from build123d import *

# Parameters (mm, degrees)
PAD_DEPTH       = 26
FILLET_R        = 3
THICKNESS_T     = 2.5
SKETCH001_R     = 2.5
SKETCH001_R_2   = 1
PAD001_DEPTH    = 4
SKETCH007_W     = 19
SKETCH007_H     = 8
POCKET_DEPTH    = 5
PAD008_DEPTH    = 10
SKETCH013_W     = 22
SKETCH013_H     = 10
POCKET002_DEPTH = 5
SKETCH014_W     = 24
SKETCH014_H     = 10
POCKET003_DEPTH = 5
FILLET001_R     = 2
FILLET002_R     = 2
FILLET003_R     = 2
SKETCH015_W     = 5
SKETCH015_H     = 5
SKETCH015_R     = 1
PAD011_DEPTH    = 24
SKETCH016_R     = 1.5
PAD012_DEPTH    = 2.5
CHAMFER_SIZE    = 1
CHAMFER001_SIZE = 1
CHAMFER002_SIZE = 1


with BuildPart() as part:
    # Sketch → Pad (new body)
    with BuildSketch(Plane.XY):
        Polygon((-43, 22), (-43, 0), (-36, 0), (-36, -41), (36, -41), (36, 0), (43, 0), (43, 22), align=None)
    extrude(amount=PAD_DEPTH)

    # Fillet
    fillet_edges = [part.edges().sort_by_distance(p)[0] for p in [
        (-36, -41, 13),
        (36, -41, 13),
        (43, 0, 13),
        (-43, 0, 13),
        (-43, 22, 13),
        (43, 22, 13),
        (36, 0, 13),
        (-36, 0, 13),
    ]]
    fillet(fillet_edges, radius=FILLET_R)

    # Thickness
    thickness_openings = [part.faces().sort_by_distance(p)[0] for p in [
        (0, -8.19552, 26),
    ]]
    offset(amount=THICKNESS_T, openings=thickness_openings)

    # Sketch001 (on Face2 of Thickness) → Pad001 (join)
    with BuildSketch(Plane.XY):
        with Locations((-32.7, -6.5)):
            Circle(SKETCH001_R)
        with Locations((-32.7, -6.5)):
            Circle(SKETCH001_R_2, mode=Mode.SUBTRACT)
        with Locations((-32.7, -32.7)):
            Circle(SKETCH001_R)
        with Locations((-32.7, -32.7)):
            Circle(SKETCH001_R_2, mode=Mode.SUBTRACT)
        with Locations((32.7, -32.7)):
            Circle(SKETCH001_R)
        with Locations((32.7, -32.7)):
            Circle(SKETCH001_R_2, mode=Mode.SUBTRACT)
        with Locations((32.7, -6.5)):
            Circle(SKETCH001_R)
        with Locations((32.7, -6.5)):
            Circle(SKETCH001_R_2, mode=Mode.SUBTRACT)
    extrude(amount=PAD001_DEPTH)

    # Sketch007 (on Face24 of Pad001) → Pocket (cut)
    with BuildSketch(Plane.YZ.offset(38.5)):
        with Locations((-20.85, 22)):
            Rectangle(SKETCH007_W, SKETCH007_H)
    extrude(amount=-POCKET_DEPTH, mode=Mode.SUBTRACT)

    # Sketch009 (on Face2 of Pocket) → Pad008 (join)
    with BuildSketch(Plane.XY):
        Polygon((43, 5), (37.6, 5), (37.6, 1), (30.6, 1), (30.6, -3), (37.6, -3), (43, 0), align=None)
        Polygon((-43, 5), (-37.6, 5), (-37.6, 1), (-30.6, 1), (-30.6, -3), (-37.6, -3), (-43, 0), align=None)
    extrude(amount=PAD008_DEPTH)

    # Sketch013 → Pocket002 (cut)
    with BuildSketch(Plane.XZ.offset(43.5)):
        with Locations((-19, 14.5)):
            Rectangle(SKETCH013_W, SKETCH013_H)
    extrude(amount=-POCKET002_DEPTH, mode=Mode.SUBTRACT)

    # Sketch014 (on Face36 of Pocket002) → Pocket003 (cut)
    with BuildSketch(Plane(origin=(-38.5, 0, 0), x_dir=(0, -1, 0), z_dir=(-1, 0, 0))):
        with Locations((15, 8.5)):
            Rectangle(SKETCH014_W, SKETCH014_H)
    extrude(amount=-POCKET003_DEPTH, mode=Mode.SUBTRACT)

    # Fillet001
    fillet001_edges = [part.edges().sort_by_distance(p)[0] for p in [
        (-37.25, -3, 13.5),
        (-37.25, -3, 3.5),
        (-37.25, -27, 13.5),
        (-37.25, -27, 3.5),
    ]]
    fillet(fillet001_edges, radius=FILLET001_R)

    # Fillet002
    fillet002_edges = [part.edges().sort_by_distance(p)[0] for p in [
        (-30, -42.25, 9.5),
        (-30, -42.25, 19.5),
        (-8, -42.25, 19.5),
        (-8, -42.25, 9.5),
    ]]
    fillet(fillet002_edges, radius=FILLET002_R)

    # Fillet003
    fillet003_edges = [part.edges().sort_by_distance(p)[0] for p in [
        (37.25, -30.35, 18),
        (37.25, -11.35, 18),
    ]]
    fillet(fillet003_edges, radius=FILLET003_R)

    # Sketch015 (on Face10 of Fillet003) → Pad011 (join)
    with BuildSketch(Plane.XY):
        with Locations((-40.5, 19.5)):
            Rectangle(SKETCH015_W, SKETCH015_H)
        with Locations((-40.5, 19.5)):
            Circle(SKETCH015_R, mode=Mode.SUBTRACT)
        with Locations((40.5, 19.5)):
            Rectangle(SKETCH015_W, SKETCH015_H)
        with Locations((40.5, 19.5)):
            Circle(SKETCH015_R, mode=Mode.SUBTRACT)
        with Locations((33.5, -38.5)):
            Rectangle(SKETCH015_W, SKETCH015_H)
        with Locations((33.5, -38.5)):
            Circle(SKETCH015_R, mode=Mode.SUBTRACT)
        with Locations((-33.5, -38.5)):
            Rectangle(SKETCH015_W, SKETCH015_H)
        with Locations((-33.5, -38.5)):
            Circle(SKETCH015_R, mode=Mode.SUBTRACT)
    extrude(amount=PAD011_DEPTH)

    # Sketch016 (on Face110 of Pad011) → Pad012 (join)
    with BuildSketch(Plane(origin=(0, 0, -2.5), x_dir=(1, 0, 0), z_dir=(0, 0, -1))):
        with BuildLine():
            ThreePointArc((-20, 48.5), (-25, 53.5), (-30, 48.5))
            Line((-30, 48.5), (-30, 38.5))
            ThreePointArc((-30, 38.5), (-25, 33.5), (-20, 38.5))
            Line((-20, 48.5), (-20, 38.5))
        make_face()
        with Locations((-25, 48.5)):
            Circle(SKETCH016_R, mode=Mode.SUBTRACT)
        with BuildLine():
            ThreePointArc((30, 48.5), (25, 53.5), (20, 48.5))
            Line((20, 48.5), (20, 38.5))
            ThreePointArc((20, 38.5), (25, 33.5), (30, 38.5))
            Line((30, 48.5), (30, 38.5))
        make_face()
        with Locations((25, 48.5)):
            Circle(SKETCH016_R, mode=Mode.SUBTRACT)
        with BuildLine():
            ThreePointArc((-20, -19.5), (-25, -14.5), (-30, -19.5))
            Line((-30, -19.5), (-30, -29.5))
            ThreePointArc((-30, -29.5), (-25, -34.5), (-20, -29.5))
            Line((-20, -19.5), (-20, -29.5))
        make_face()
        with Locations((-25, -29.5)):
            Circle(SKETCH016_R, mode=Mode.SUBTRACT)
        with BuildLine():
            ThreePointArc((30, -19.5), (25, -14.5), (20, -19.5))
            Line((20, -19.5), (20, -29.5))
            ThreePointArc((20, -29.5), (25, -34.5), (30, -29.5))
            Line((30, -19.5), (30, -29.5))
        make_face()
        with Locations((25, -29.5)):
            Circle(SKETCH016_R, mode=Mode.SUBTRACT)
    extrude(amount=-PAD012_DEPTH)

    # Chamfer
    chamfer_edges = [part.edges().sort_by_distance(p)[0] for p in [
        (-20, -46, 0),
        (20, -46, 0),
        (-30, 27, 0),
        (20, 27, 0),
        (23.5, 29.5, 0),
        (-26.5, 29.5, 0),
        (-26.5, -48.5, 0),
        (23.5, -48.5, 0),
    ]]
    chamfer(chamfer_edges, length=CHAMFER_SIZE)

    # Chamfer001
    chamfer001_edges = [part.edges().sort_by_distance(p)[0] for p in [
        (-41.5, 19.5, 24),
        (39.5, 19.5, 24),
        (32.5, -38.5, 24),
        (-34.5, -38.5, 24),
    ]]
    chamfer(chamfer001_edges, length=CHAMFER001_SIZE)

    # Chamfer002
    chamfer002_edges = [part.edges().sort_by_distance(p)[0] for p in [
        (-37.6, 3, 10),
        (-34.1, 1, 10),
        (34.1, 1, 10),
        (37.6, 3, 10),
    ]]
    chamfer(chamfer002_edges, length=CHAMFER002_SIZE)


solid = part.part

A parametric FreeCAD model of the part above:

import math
import FreeCAD as App
import Part
import Sketcher

V = App.Vector
Q = App.Units.Quantity


def edges_at(feature, points):
    """Names of the edges that pass closest to the given points."""
    edges = feature.Shape.Edges
    near = lambda p: min(range(len(edges)), key=lambda i: edges[i].distToShape(Part.Vertex(*p))[0])
    return sorted({f"Edge{near(p) + 1}" for p in points})


def faces_at(feature, points):
    """Names of the faces that lie closest to the given points."""
    faces = feature.Shape.Faces
    near = lambda p: min(range(len(faces)), key=lambda i: faces[i].distToShape(Part.Vertex(*p))[0])
    return sorted({f"Face{near(p) + 1}" for p in points})

doc = App.newDocument("Part")
body = doc.addObject("PartDesign::Body", "Body")

sketch1 = doc.addObject("Sketcher::SketchObject", "Sketch")
body.addObject(sketch1)
sketch1.AttachmentSupport = (doc.XY_Plane, [""])
sketch1.MapMode = "FlatFace"
sketch1.addGeometry([
    Part.LineSegment(V(-43, 22, 0), V(-43, 0, 0)),
    Part.LineSegment(V(-43, 0, 0), V(-36, 0, 0)),
    Part.LineSegment(V(-36, 0, 0), V(-36, -41, 0)),
    Part.LineSegment(V(-36, -41, 0), V(36, -41, 0)),
    Part.LineSegment(V(36, -41, 0), V(36, 0, 0)),
    Part.LineSegment(V(36, 0, 0), V(43, 0, 0)),
    Part.LineSegment(V(43, 0, 0), V(43, 22, 0)),
    Part.LineSegment(V(43, 22, 0), V(-43, 22, 0)),
], False)
sketch1.addConstraint([
    Sketcher.Constraint("Coincident", 0, 2, 1, 1),
    Sketcher.Constraint("Coincident", 1, 2, 2, 1),
    Sketcher.Constraint("Coincident", 2, 2, 3, 1),
    Sketcher.Constraint("Coincident", 3, 2, 4, 1),
    Sketcher.Constraint("Coincident", 4, 2, 5, 1),
    Sketcher.Constraint("Coincident", 5, 2, 6, 1),
    Sketcher.Constraint("Coincident", 6, 2, 7, 1),
    Sketcher.Constraint("Coincident", 7, 2, 0, 1),
    Sketcher.Constraint("Vertical", 0),
    Sketcher.Constraint("Horizontal", 1),
    Sketcher.Constraint("Vertical", 2),
    Sketcher.Constraint("Horizontal", 3),
    Sketcher.Constraint("Vertical", 4),
    Sketcher.Constraint("Horizontal", 5),
    Sketcher.Constraint("Vertical", 6),
    Sketcher.Constraint("Horizontal", 7),
    Sketcher.Constraint("Symmetric", 1, 2, 4, 2, -1, 1),
    Sketcher.Constraint("Symmetric", 0, 2, 5, 2, -2),
    Sketcher.Constraint("DistanceX", 1, 1, 1, 2, Q("7 mm")),
    Sketcher.Constraint("DistanceX", 3, 1, 3, 2, Q("72 mm")),
    Sketcher.Constraint("DistanceY", 0, 2, 0, 1, Q("22 mm")),
    Sketcher.Constraint("DistanceY", 2, 2, 2, 1, Q("41 mm")),
])
pad1 = doc.addObject("PartDesign::Pad", "Pad")
body.addObject(pad1)
pad1.Profile = sketch1
pad1.Length = 26
doc.recompute()

fillet = doc.addObject("PartDesign::Fillet", "Fillet")
body.addObject(fillet)
fillet.Base = (pad1, edges_at(pad1, [
    (-36, -41, 13),
    (36, -41, 13),
    (43, 0, 13),
    (-43, 0, 13),
    (-43, 22, 13),
    (43, 22, 13),
    (36, 0, 13),
    (-36, 0, 13),
]))
fillet.Radius = 3
doc.recompute()

thickness = doc.addObject("PartDesign::Thickness", "Thickness")
body.addObject(thickness)
thickness.Base = (fillet, faces_at(fillet, [(0, -9.5, 26)]))
thickness.Value = 2.5
thickness.Reversed = False
thickness.Join = "Arc"

sketch2 = doc.addObject("Sketcher::SketchObject", "Sketch001")
body.addObject(sketch2)
sketch2.AttachmentSupport = (doc.XY_Plane, [""])
sketch2.MapMode = "FlatFace"
sketch2.addGeometry([
    Part.Circle(V(-32.7, -6.5, 0), V(0, 0, 1), 2.5),
    Part.Circle(V(-32.7, -6.5, 0), V(0, 0, 1), 1),
    Part.Circle(V(-32.7, -32.7, 0), V(0, 0, 1), 2.5),
    Part.Circle(V(-32.7, -32.7, 0), V(0, 0, 1), 1),
    Part.Circle(V(32.7, -32.7, 0), V(0, 0, 1), 2.5),
    Part.Circle(V(32.7, -32.7, 0), V(0, 0, 1), 1),
    Part.Circle(V(32.7, -6.5, 0), V(0, 0, 1), 2.5),
    Part.Circle(V(32.7, -6.5, 0), V(0, 0, 1), 1),
], False)
sketch2.addConstraint([
    Sketcher.Constraint("Coincident", 1, 3, 0, 3),
    Sketcher.Constraint("Coincident", 3, 3, 2, 3),
    Sketcher.Constraint("Coincident", 5, 3, 4, 3),
    Sketcher.Constraint("Coincident", 7, 3, 6, 3),
    Sketcher.Constraint("Equal", 0, 2),
    Sketcher.Constraint("Equal", 1, 3),
    Sketcher.Constraint("Equal", 2, 4),
    Sketcher.Constraint("Equal", 3, 5),
    Sketcher.Constraint("Equal", 4, 6),
    Sketcher.Constraint("Equal", 5, 7),
    Sketcher.Constraint("Symmetric", 2, 3, 4, 3, -2),
    Sketcher.Constraint("Symmetric", 0, 3, 6, 3, -2),
    Sketcher.Constraint("Vertical", 1, 3, 2, 3),
    Sketcher.Constraint("Diameter", 0, Q("5 mm")),
    Sketcher.Constraint("Diameter", 1, Q("2 mm")),
    Sketcher.Constraint("DistanceX", 0, 3, -1, 1, Q("32.7 mm")),
    Sketcher.Constraint("DistanceY", 0, 3, -1, 1, Q("6.5 mm")),
    Sketcher.Constraint("DistanceY", 2, 3, -1, 1, Q("32.7 mm")),
])
pad2 = doc.addObject("PartDesign::Pad", "Pad001")
body.addObject(pad2)
pad2.Profile = sketch2
pad2.Length = 4

sketch3 = doc.addObject("Sketcher::SketchObject", "Sketch002")
body.addObject(sketch3)
sketch3.AttachmentSupport = (doc.YZ_Plane, [""])
sketch3.MapMode = "FlatFace"
sketch3.AttachmentOffset = App.Placement(V(0, 0, 38.5), App.Rotation())
sketch3.addGeometry([
    Part.LineSegment(V(-30.35, 26, 0), V(-30.35, 18, 0)),
    Part.LineSegment(V(-30.35, 18, 0), V(-11.35, 18, 0)),
    Part.LineSegment(V(-11.35, 18, 0), V(-11.35, 26, 0)),
    Part.LineSegment(V(-11.35, 26, 0), V(-30.35, 26, 0)),
], False)
sketch3.addConstraint([
    Sketcher.Constraint("Coincident", 0, 2, 1, 1),
    Sketcher.Constraint("Coincident", 1, 2, 2, 1),
    Sketcher.Constraint("Coincident", 2, 2, 3, 1),
    Sketcher.Constraint("Coincident", 3, 2, 0, 1),
    Sketcher.Constraint("Vertical", 0),
    Sketcher.Constraint("Horizontal", 1),
    Sketcher.Constraint("Vertical", 2),
    Sketcher.Constraint("Horizontal", 3),
    Sketcher.Constraint("DistanceX", 1, 1, 1, 2, Q("19 mm")),
    Sketcher.Constraint("DistanceY", 0, 2, 0, 1, Q("8 mm")),
    Sketcher.Constraint("DistanceY", -1, 1, 0, 2, Q("18 mm")),
    Sketcher.Constraint("DistanceX", 0, 2, -1, 1, Q("30.35 mm")),
])
pocket1 = doc.addObject("PartDesign::Pocket", "Pocket")
body.addObject(pocket1)
pocket1.Profile = sketch3
pocket1.Length = 5

sketch4 = doc.addObject("Sketcher::SketchObject", "Sketch003")
body.addObject(sketch4)
sketch4.AttachmentSupport = (doc.XY_Plane, [""])
sketch4.MapMode = "FlatFace"
sketch4.addGeometry([
    Part.LineSegment(V(43, 5, 0), V(37.6, 5, 0)),
    Part.LineSegment(V(37.6, 5, 0), V(37.6, 1, 0)),
    Part.LineSegment(V(37.6, 1, 0), V(30.6, 1, 0)),
    Part.LineSegment(V(30.6, 1, 0), V(30.6, -3, 0)),
    Part.LineSegment(V(30.6, -3, 0), V(37.6, -3, 0)),
    Part.LineSegment(V(37.6, -3, 0), V(43, 0, 0)),
    Part.LineSegment(V(43, 0, 0), V(43, 5, 0)),
    Part.LineSegment(V(-37.6, 5, 0), V(-43, 5, 0)),
    Part.LineSegment(V(-43, 5, 0), V(-43, 0, 0)),
    Part.LineSegment(V(-43, 0, 0), V(-37.6, -3, 0)),
    Part.LineSegment(V(-37.6, -3, 0), V(-30.6, -3, 0)),
    Part.LineSegment(V(-30.6, -3, 0), V(-30.6, 1, 0)),
    Part.LineSegment(V(-30.6, 1, 0), V(-37.6, 1, 0)),
    Part.LineSegment(V(-37.6, 1, 0), V(-37.6, 5, 0)),
], False)
sketch4.addConstraint([
    Sketcher.Constraint("Coincident", 0, 2, 1, 1),
    Sketcher.Constraint("Coincident", 1, 2, 2, 1),
    Sketcher.Constraint("Coincident", 2, 2, 3, 1),
    Sketcher.Constraint("Coincident", 3, 2, 4, 1),
    Sketcher.Constraint("Coincident", 4, 2, 5, 1),
    Sketcher.Constraint("Coincident", 5, 2, 6, 1),
    Sketcher.Constraint("Coincident", 6, 2, 0, 1),
    Sketcher.Constraint("Coincident", 7, 2, 8, 1),
    Sketcher.Constraint("Coincident", 8, 2, 9, 1),
    Sketcher.Constraint("Coincident", 9, 2, 10, 1),
    Sketcher.Constraint("Coincident", 10, 2, 11, 1),
    Sketcher.Constraint("Coincident", 11, 2, 12, 1),
    Sketcher.Constraint("Coincident", 12, 2, 13, 1),
    Sketcher.Constraint("Coincident", 13, 2, 7, 1),
    Sketcher.Constraint("Horizontal", 0),
    Sketcher.Constraint("Vertical", 1),
    Sketcher.Constraint("Horizontal", 2),
    Sketcher.Constraint("Vertical", 3),
    Sketcher.Constraint("Horizontal", 4),
    Sketcher.Constraint("Vertical", 6),
    Sketcher.Constraint("Horizontal", 7),
    Sketcher.Constraint("Vertical", 8),
    Sketcher.Constraint("Horizontal", 10),
    Sketcher.Constraint("Vertical", 11),
    Sketcher.Constraint("Horizontal", 12),
    Sketcher.Constraint("Vertical", 13),
    Sketcher.Constraint("Symmetric", 5, 2, 8, 2, -1, 1),
    Sketcher.Constraint("Symmetric", 4, 2, 9, 2, -2),
    Sketcher.Constraint("Symmetric", 2, 2, 11, 2, -2),
    Sketcher.Constraint("Symmetric", 0, 2, 13, 2, -2),
    Sketcher.Constraint("PointOnObject", 5, 2, -1),
    Sketcher.Constraint("Vertical", 1, 2, 4, 2),
    Sketcher.Constraint("Equal", 1, 3),
    Sketcher.Constraint("DistanceX", 2, 2, 2, 1, Q("7 mm")),
    Sketcher.Constraint("DistanceY", 1, 2, 1, 1, Q("4 mm")),
    Sketcher.Constraint("DistanceY", 6, 1, 6, 2, Q("5 mm")),
    Sketcher.Constraint("DistanceX", 0, 2, 0, 1, Q("5.4 mm")),
    Sketcher.Constraint("DistanceX", -1, 1, 5, 2, Q("43 mm")),
])
pad3 = doc.addObject("PartDesign::Pad", "Pad002")
body.addObject(pad3)
pad3.Profile = sketch4
pad3.Length = 10

sketch5 = doc.addObject("Sketcher::SketchObject", "Sketch004")
body.addObject(sketch5)
sketch5.AttachmentSupport = (doc.XZ_Plane, [""])
sketch5.MapMode = "FlatFace"
sketch5.AttachmentOffset = App.Placement(V(0, 0, 43.5), App.Rotation())
sketch5.addGeometry([
    Part.LineSegment(V(-30, 19.5, 0), V(-30, 9.5, 0)),
    Part.LineSegment(V(-30, 9.5, 0), V(-8, 9.5, 0)),
    Part.LineSegment(V(-8, 9.5, 0), V(-8, 19.5, 0)),
    Part.LineSegment(V(-8, 19.5, 0), V(-30, 19.5, 0)),
], False)
sketch5.addConstraint([
    Sketcher.Constraint("Coincident", 0, 2, 1, 1),
    Sketcher.Constraint("Coincident", 1, 2, 2, 1),
    Sketcher.Constraint("Coincident", 2, 2, 3, 1),
    Sketcher.Constraint("Coincident", 3, 2, 0, 1),
    Sketcher.Constraint("Vertical", 0),
    Sketcher.Constraint("Horizontal", 1),
    Sketcher.Constraint("Vertical", 2),
    Sketcher.Constraint("Horizontal", 3),
    Sketcher.Constraint("DistanceX", 1, 1, 1, 2, Q("22 mm")),
    Sketcher.Constraint("DistanceY", 0, 2, 0, 1, Q("10 mm")),
    Sketcher.Constraint("DistanceX", 0, 2, -1, 1, Q("30 mm")),
    Sketcher.Constraint("DistanceY", -1, 1, 0, 2, Q("9.5 mm")),
])
pocket2 = doc.addObject("PartDesign::Pocket", "Pocket001")
body.addObject(pocket2)
pocket2.Profile = sketch5
pocket2.Length = 5

sketch6 = doc.addObject("Sketcher::SketchObject", "Sketch005")
body.addObject(sketch6)
sketch6.AttachmentSupport = (doc.YZ_Plane, [""])
sketch6.MapMode = "FlatFace"
sketch6.AttachmentOffset = App.Placement(V(0, 0, -38.5), App.Rotation())
sketch6.addGeometry([
    Part.LineSegment(V(-3, 13.5, 0), V(-3, 3.5, 0)),
    Part.LineSegment(V(-3, 3.5, 0), V(-27, 3.5, 0)),
    Part.LineSegment(V(-27, 3.5, 0), V(-27, 13.5, 0)),
    Part.LineSegment(V(-27, 13.5, 0), V(-3, 13.5, 0)),
], False)
sketch6.addConstraint([
    Sketcher.Constraint("Coincident", 0, 2, 1, 1),
    Sketcher.Constraint("Coincident", 1, 2, 2, 1),
    Sketcher.Constraint("Coincident", 2, 2, 3, 1),
    Sketcher.Constraint("Coincident", 3, 2, 0, 1),
    Sketcher.Constraint("Vertical", 0),
    Sketcher.Constraint("Horizontal", 1),
    Sketcher.Constraint("Vertical", 2),
    Sketcher.Constraint("Horizontal", 3),
    Sketcher.Constraint("DistanceX", 1, 2, 1, 1, Q("24 mm")),
    Sketcher.Constraint("DistanceY", 0, 2, 0, 1, Q("10 mm")),
    Sketcher.Constraint("DistanceX", 0, 2, -1, 1, Q("3 mm")),
    Sketcher.Constraint("DistanceY", -1, 1, 0, 2, Q("3.5 mm")),
])
pocket3 = doc.addObject("PartDesign::Pocket", "Pocket002")
body.addObject(pocket3)
pocket3.Profile = sketch6
pocket3.Length = 5
pocket3.Reversed = True
doc.recompute()

fillet2 = doc.addObject("PartDesign::Fillet", "Fillet001")
body.addObject(fillet2)
fillet2.Base = (pocket3, edges_at(pocket3, [
    (-37.25, -3, 13.5),
    (-37.25, -3, 3.5),
    (-37.25, -27, 13.5),
    (-37.25, -27, 3.5),
]))
fillet2.Radius = 2
doc.recompute()

fillet3 = doc.addObject("PartDesign::Fillet", "Fillet002")
body.addObject(fillet3)
fillet3.Base = (fillet2, edges_at(fillet2, [
    (-30, -42.25, 9.5),
    (-30, -42.25, 19.5),
    (-8, -42.25, 19.5),
    (-8, -42.25, 9.5),
]))
fillet3.Radius = 2
doc.recompute()

fillet4 = doc.addObject("PartDesign::Fillet", "Fillet003")
body.addObject(fillet4)
fillet4.Base = (fillet3, edges_at(fillet3, [(37.25, -30.35, 18), (37.25, -11.35, 18)]))
fillet4.Radius = 2

sketch7 = doc.addObject("Sketcher::SketchObject", "Sketch006")
body.addObject(sketch7)
sketch7.AttachmentSupport = (doc.XY_Plane, [""])
sketch7.MapMode = "FlatFace"
sketch7.addGeometry([
    Part.LineSegment(V(-43, 22, 0), V(-43, 17, 0)),
    Part.LineSegment(V(-43, 17, 0), V(-38, 17, 0)),
    Part.LineSegment(V(-38, 17, 0), V(-38, 22, 0)),
    Part.LineSegment(V(-38, 22, 0), V(-43, 22, 0)),
    Part.Circle(V(-40.5, 19.5, 0), V(0, 0, 1), 1),
    Part.LineSegment(V(38, 22, 0), V(38, 17, 0)),
    Part.LineSegment(V(38, 17, 0), V(43, 17, 0)),
    Part.LineSegment(V(43, 17, 0), V(43, 22, 0)),
    Part.LineSegment(V(43, 22, 0), V(38, 22, 0)),
    Part.Circle(V(40.5, 19.5, 0), V(0, 0, 1), 1),
    Part.LineSegment(V(31, -36, 0), V(31, -41, 0)),
    Part.LineSegment(V(31, -41, 0), V(36, -41, 0)),
    Part.LineSegment(V(36, -41, 0), V(36, -36, 0)),
    Part.LineSegment(V(36, -36, 0), V(31, -36, 0)),
    Part.Circle(V(33.5, -38.5, 0), V(0, 0, 1), 1),
    Part.LineSegment(V(-36, -36, 0), V(-36, -41, 0)),
    Part.LineSegment(V(-36, -41, 0), V(-31, -41, 0)),
    Part.LineSegment(V(-31, -41, 0), V(-31, -36, 0)),
    Part.LineSegment(V(-31, -36, 0), V(-36, -36, 0)),
    Part.Circle(V(-33.5, -38.5, 0), V(0, 0, 1), 1),
], False)
sketch7.addConstraint([
    Sketcher.Constraint("Coincident", 0, 2, 1, 1),
    Sketcher.Constraint("Coincident", 1, 2, 2, 1),
    Sketcher.Constraint("Coincident", 2, 2, 3, 1),
    Sketcher.Constraint("Coincident", 3, 2, 0, 1),
    Sketcher.Constraint("Coincident", 5, 2, 6, 1),
    Sketcher.Constraint("Coincident", 6, 2, 7, 1),
    Sketcher.Constraint("Coincident", 7, 2, 8, 1),
    Sketcher.Constraint("Coincident", 8, 2, 5, 1),
    Sketcher.Constraint("Coincident", 10, 2, 11, 1),
    Sketcher.Constraint("Coincident", 11, 2, 12, 1),
    Sketcher.Constraint("Coincident", 12, 2, 13, 1),
    Sketcher.Constraint("Coincident", 13, 2, 10, 1),
    Sketcher.Constraint("Coincident", 15, 2, 16, 1),
    Sketcher.Constraint("Coincident", 16, 2, 17, 1),
    Sketcher.Constraint("Coincident", 17, 2, 18, 1),
    Sketcher.Constraint("Coincident", 18, 2, 15, 1),
    Sketcher.Constraint("Vertical", 0),
    Sketcher.Constraint("Horizontal", 1),
    Sketcher.Constraint("Vertical", 2),
    Sketcher.Constraint("Horizontal", 3),
    Sketcher.Constraint("Vertical", 5),
    Sketcher.Constraint("Horizontal", 6),
    Sketcher.Constraint("Vertical", 7),
    Sketcher.Constraint("Horizontal", 8),
    Sketcher.Constraint("Vertical", 10),
    Sketcher.Constraint("Horizontal", 11),
    Sketcher.Constraint("Vertical", 12),
    Sketcher.Constraint("Horizontal", 13),
    Sketcher.Constraint("Vertical", 15),
    Sketcher.Constraint("Horizontal", 16),
    Sketcher.Constraint("Vertical", 17),
    Sketcher.Constraint("Horizontal", 18),
    Sketcher.Constraint("Equal", 4, 9),
    Sketcher.Constraint("Equal", 9, 14),
    Sketcher.Constraint("Equal", 14, 19),
    Sketcher.Constraint("Symmetric", 4, 3, 9, 3, -2),
    Sketcher.Constraint("Symmetric", 14, 3, 19, 3, -2),
    Sketcher.Constraint("Symmetric", 1, 2, 5, 2, -2),
    Sketcher.Constraint("Symmetric", 3, 2, 7, 2, -2),
    Sketcher.Constraint("Symmetric", 11, 2, 15, 2, -2),
    Sketcher.Constraint("Symmetric", 13, 2, 17, 2, -2),
    Sketcher.Constraint("Equal", 8, 11),
    Sketcher.Constraint("Equal", 18, 0),
    Sketcher.Constraint("Equal", 7, 10),
    Sketcher.Constraint("Diameter", 4, Q("2 mm")),
    Sketcher.Constraint("DistanceX", 1, 1, 1, 2, Q("5 mm")),
    Sketcher.Constraint("DistanceX", 0, 2, -1, 1, Q("43 mm")),
    Sketcher.Constraint("DistanceY", -1, 1, 0, 2, Q("17 mm")),
    Sketcher.Constraint("DistanceX", -1, 1, 10, 2, Q("31 mm")),
    Sketcher.Constraint("DistanceY", 10, 2, -1, 1, Q("41 mm")),
    Sketcher.Constraint("DistanceX", 4, 3, 9, 3, Q("81 mm")),
    Sketcher.Constraint("DistanceX", 14, 3, 9, 3, Q("7 mm")),
    Sketcher.Constraint("DistanceY", 14, 3, 9, 3, Q("58 mm")),
    Sketcher.Constraint("DistanceY", -1, 1, 4, 3, Q("19.5 mm")),
])
pad4 = doc.addObject("PartDesign::Pad", "Pad003")
body.addObject(pad4)
pad4.Profile = sketch7
pad4.Length = 24

sketch8 = doc.addObject("Sketcher::SketchObject", "Sketch007")
body.addObject(sketch8)
sketch8.AttachmentSupport = (doc.XY_Plane, [""])
sketch8.MapMode = "FlatFace"
sketch8.AttachmentOffset = App.Placement(V(0, 0, -2.5), App.Rotation())
sketch8.addGeometry([
    Part.ArcOfCircle(Part.Circle(V(-25, -48.5, 0), V(0, 0, 1), 5), math.radians(180), math.radians(360)),
    Part.LineSegment(V(-30, -48.5, 0), V(-30, -38.5, 0)),
    Part.ArcOfCircle(Part.Circle(V(-25, -38.5, 0), V(0, 0, 1), 5), math.radians(0), math.radians(180)),
    Part.LineSegment(V(-20, -38.5, 0), V(-20, -48.5, 0)),
    Part.Circle(V(-25, -48.5, 0), V(0, 0, 1), 1.5),
    Part.ArcOfCircle(Part.Circle(V(25, -48.5, 0), V(0, 0, 1), 5), math.radians(180), math.radians(360)),
    Part.LineSegment(V(20, -48.5, 0), V(20, -38.5, 0)),
    Part.ArcOfCircle(Part.Circle(V(25, -38.5, 0), V(0, 0, 1), 5), math.radians(0), math.radians(180)),
    Part.LineSegment(V(30, -38.5, 0), V(30, -48.5, 0)),
    Part.Circle(V(25, -48.5, 0), V(0, 0, 1), 1.5),
    Part.ArcOfCircle(Part.Circle(V(-25, 19.5, 0), V(0, 0, 1), 5), math.radians(180), math.radians(360)),
    Part.LineSegment(V(-30, 19.5, 0), V(-30, 29.5, 0)),
    Part.ArcOfCircle(Part.Circle(V(-25, 29.5, 0), V(0, 0, 1), 5), math.radians(0), math.radians(180)),
    Part.LineSegment(V(-20, 29.5, 0), V(-20, 19.5, 0)),
    Part.Circle(V(-25, 29.5, 0), V(0, 0, 1), 1.5),
    Part.ArcOfCircle(Part.Circle(V(25, 19.5, 0), V(0, 0, 1), 5), math.radians(180), math.radians(360)),
    Part.LineSegment(V(20, 19.5, 0), V(20, 29.5, 0)),
    Part.ArcOfCircle(Part.Circle(V(25, 29.5, 0), V(0, 0, 1), 5), math.radians(0), math.radians(180)),
    Part.LineSegment(V(30, 29.5, 0), V(30, 19.5, 0)),
    Part.Circle(V(25, 29.5, 0), V(0, 0, 1), 1.5),
], False)
sketch8.addConstraint([
    Sketcher.Constraint("Tangent", 0, 1, 1, 1),
    Sketcher.Constraint("Tangent", 1, 2, 2, 2),
    Sketcher.Constraint("Tangent", 2, 1, 3, 1),
    Sketcher.Constraint("Tangent", 3, 2, 0, 2),
    Sketcher.Constraint("Tangent", 5, 1, 6, 1),
    Sketcher.Constraint("Tangent", 6, 2, 7, 2),
    Sketcher.Constraint("Tangent", 7, 1, 8, 1),
    Sketcher.Constraint("Tangent", 8, 2, 5, 2),
    Sketcher.Constraint("Tangent", 10, 1, 11, 1),
    Sketcher.Constraint("Tangent", 11, 2, 12, 2),
    Sketcher.Constraint("Tangent", 12, 1, 13, 1),
    Sketcher.Constraint("Tangent", 13, 2, 10, 2),
    Sketcher.Constraint("Tangent", 15, 1, 16, 1),
    Sketcher.Constraint("Tangent", 16, 2, 17, 2),
    Sketcher.Constraint("Tangent", 17, 1, 18, 1),
    Sketcher.Constraint("Tangent", 18, 2, 15, 2),
    Sketcher.Constraint("Vertical", 1),
    Sketcher.Constraint("Vertical", 3),
    Sketcher.Constraint("Vertical", 6),
    Sketcher.Constraint("Vertical", 8),
    Sketcher.Constraint("Vertical", 11),
    Sketcher.Constraint("Vertical", 13),
    Sketcher.Constraint("Vertical", 16),
    Sketcher.Constraint("Vertical", 18),
    Sketcher.Constraint("Coincident", 4, 3, 0, 3),
    Sketcher.Constraint("Coincident", 9, 3, 5, 3),
    Sketcher.Constraint("Coincident", 14, 3, 12, 3),
    Sketcher.Constraint("Coincident", 19, 3, 17, 3),
    Sketcher.Constraint("Equal", 2, 5),
    Sketcher.Constraint("Equal", 4, 9),
    Sketcher.Constraint("Equal", 7, 10),
    Sketcher.Constraint("Equal", 9, 14),
    Sketcher.Constraint("Equal", 12, 15),
    Sketcher.Constraint("Equal", 14, 19),
    Sketcher.Constraint("Symmetric", 0, 3, 5, 3, -2),
    Sketcher.Constraint("Symmetric", 10, 3, 15, 3, -2),
    Sketcher.Constraint("Horizontal", 2, 3, 7, 3),
    Sketcher.Constraint("Horizontal", 14, 3, 17, 3),
    Sketcher.Constraint("Vertical", 4, 3, 10, 3),
    Sketcher.Constraint("Equal", 8, 11),
    Sketcher.Constraint("Diameter", 4, Q("3 mm")),
    Sketcher.Constraint("Radius", 0, Q("5 mm")),
    Sketcher.Constraint("DistanceY", 1, 1, 1, 2, Q("10 mm")),
    Sketcher.Constraint("DistanceX", 0, 3, -1, 1, Q("25 mm")),
    Sketcher.Constraint("DistanceY", 2, 3, 10, 3, Q("58 mm")),
    Sketcher.Constraint("DistanceY", 0, 3, -1, 1, Q("48.5 mm")),
])
pad5 = doc.addObject("PartDesign::Pad", "Pad004")
body.addObject(pad5)
pad5.Profile = sketch8
pad5.Length = 2.5
doc.recompute()

chamfer = doc.addObject("PartDesign::Chamfer", "Chamfer")
body.addObject(chamfer)
chamfer.Base = (pad5, edges_at(pad5, [
    (-20, -46, 0),
    (20, -46, 0),
    (-30, 27, 0),
    (20, 27, 0),
    (23.5, 29.5, 0),
    (-26.5, 29.5, 0),
    (-26.5, -48.5, 0),
    (23.5, -48.5, 0),
]))
chamfer.Size = 1
doc.recompute()

chamfer2 = doc.addObject("PartDesign::Chamfer", "Chamfer001")
body.addObject(chamfer2)
chamfer2.Base = (chamfer, edges_at(chamfer, [
    (-41.5, 19.5, 24),
    (39.5, 19.5, 24),
    (32.5, -38.5, 24),
    (-34.5, -38.5, 24),
]))
chamfer2.Size = 1
doc.recompute()

chamfer3 = doc.addObject("PartDesign::Chamfer", "Chamfer002")
body.addObject(chamfer3)
chamfer3.Base = (chamfer2, edges_at(chamfer2, [
    (-37.6, 3, 10),
    (-34.1, 1, 10),
    (34.1, 1, 10),
    (37.6, 3, 10),
]))
chamfer3.Size = 1

doc.recompute()
